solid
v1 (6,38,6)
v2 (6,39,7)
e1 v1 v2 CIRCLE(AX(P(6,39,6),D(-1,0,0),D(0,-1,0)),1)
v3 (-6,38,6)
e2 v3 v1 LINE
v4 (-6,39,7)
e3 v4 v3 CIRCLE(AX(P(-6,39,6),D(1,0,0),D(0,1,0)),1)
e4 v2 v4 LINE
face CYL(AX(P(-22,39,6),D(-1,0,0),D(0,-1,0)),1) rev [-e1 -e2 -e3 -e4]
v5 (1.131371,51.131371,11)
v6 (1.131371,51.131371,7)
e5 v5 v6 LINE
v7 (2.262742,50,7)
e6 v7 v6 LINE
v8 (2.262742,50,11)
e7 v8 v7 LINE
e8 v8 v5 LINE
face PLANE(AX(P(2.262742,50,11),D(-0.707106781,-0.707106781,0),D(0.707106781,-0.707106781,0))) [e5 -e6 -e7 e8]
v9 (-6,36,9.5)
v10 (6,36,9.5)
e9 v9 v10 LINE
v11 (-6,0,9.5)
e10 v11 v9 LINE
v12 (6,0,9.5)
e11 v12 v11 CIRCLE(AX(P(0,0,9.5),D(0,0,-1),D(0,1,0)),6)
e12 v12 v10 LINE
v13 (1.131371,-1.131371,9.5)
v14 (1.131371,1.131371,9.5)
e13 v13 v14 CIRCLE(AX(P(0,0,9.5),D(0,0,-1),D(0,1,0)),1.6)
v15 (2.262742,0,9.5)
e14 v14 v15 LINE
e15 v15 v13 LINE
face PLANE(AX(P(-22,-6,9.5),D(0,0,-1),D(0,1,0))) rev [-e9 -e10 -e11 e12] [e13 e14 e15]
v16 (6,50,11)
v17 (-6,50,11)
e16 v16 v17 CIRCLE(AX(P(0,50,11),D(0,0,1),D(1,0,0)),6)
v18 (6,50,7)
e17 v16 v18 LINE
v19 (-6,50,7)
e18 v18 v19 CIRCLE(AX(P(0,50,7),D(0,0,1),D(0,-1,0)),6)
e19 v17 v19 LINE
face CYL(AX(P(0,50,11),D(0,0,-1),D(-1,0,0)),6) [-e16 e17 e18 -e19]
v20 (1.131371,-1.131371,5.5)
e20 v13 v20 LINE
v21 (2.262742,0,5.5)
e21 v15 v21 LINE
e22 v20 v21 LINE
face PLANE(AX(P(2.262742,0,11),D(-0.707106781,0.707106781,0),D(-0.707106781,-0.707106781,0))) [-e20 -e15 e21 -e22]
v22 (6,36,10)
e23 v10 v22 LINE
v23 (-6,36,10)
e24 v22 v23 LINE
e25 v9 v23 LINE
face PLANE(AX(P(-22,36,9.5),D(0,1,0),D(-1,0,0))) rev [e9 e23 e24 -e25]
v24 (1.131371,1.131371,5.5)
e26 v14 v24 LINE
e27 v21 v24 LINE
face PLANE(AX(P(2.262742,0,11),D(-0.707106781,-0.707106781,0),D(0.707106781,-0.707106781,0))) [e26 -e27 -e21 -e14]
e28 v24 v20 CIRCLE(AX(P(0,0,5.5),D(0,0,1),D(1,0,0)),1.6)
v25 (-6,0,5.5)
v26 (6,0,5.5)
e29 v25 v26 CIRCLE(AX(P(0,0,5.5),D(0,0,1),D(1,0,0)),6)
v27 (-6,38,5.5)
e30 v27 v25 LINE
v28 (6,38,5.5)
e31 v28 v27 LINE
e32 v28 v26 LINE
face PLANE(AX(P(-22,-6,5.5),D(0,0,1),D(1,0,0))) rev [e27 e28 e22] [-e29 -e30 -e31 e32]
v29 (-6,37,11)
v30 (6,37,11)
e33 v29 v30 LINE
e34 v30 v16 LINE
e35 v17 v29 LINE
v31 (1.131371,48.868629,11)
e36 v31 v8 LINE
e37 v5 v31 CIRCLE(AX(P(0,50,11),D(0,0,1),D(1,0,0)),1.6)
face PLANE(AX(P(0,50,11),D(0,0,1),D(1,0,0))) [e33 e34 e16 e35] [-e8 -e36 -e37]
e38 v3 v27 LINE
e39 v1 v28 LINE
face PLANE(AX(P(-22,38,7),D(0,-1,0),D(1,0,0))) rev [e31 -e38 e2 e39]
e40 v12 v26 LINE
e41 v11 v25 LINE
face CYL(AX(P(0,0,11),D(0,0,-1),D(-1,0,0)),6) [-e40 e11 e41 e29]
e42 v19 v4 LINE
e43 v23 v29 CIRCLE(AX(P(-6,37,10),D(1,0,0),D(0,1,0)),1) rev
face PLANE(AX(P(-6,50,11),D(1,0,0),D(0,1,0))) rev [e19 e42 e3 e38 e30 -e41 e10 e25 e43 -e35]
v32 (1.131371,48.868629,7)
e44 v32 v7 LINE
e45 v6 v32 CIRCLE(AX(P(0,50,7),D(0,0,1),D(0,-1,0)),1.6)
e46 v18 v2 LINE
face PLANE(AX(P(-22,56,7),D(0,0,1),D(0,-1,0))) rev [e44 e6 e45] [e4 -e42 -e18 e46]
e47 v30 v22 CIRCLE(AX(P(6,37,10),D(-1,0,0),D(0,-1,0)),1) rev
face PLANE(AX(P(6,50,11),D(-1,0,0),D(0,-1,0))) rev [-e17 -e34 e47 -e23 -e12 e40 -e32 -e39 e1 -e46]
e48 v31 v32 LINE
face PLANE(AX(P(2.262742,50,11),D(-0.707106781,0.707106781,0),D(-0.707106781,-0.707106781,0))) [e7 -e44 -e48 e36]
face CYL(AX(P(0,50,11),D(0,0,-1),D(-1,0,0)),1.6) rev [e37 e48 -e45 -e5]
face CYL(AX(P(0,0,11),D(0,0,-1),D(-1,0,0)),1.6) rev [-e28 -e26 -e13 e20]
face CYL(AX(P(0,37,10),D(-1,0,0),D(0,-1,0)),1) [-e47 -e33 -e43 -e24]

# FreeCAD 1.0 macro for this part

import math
import FreeCAD as App
import Part
import Sketcher

V = App.Vector
Q = App.Units.Quantity


def edges_at(feature, points):
    """Names of the edges that pass closest to the given points."""
    edges = feature.Shape.Edges
    near = lambda p: min(range(len(edges)), key=lambda i: edges[i].distToShape(Part.Vertex(*p))[0])
    return sorted({f"Edge{near(p) + 1}" for p in points})


def add_polygon(sketch, points):
    """Adds a closed chain of lines whose ends are joined by coincident constraints."""
    first, n = sketch.GeometryCount, len(points)
    for a, b in zip(points, points[1:] + points[:1]):
        sketch.addGeometry(Part.LineSegment(App.Vector(*a, 0), App.Vector(*b, 0)), False)
    for i in range(n):
        sketch.addConstraint(Sketcher.Constraint("Coincident", first + i, 2, first + (i + 1) % n, 1))

doc = App.newDocument("Part")
body = doc.addObject("PartDesign::Body", "Body")

sketch1 = body.newObject("Sketcher::SketchObject", "Sketch")
sketch1.AttachmentSupport = (doc.getObject("XY_Plane"), [""])
sketch1.MapMode = "FlatFace"
sketch1.addGeometry(Part.LineSegment(V(6, 0, 0), V(6, 50, 0)), False)
sketch1.addGeometry(Part.ArcOfCircle(Part.Circle(V(0, 50, 0), V(0, 0, 1), 6), math.radians(0), math.radians(180)), False)
sketch1.addGeometry(Part.LineSegment(V(-6, 50, 0), V(-6, 0, 0)), False)
sketch1.addGeometry(Part.ArcOfCircle(Part.Circle(V(0, 0, 0), V(0, 0, 1), 6), math.radians(180), math.radians(360)), False)
sketch1.addGeometry(Part.LineSegment(V(2.3, 0, 0), V(1.1, -1.1, 0)), False)
sketch1.addGeometry(Part.ArcOfCircle(Part.Circle(V(0, 0, 0), V(0, 0, 1), 1.6), math.radians(45), math.radians(315)), False)
sketch1.addGeometry(Part.LineSegment(V(1.1, 1.1, 0), V(2.3, 0, 0)), False)
sketch1.addGeometry(Part.LineSegment(V(2.3, 50, 0), V(1.1, 48.9, 0)), False)
sketch1.addGeometry(Part.ArcOfCircle(Part.Circle(V(0, 50, 0), V(0, 0, 1), 1.6), math.radians(45), math.radians(315)), False)
sketch1.addGeometry(Part.LineSegment(V(1.1, 51.1, 0), V(2.3, 50, 0)), False)
sketch1.addConstraint(Sketcher.Constraint("Tangent", 0, 2, 1, 1))
sketch1.addConstraint(Sketcher.Constraint("Tangent", 1, 2, 2, 1))
sketch1.addConstraint(Sketcher.Constraint("Tangent", 2, 2, 3, 1))
sketch1.addConstraint(Sketcher.Constraint("Tangent", 3, 2, 0, 1))
sketch1.addConstraint(Sketcher.Constraint("Tangent", 4, 2, 5, 2))
sketch1.addConstraint(Sketcher.Constraint("Tangent", 5, 1, 6, 1))
sketch1.addConstraint(Sketcher.Constraint("Coincident", 6, 2, 4, 1))
sketch1.addConstraint(Sketcher.Constraint("Tangent", 7, 2, 8, 2))
sketch1.addConstraint(Sketcher.Constraint("Tangent", 8, 1, 9, 1))
sketch1.addConstraint(Sketcher.Constraint("Coincident", 9, 2, 7, 1))
sketch1.addConstraint(Sketcher.Constraint("Vertical", 0))
sketch1.addConstraint(Sketcher.Constraint("Vertical", 2))
sketch1.addConstraint(Sketcher.Constraint("Coincident", 3, 3, -1, 1))
sketch1.addConstraint(Sketcher.Constraint("Coincident", 5, 3, -1, 1))
sketch1.addConstraint(Sketcher.Constraint("Coincident", 8, 3, 1, 3))
sketch1.addConstraint(Sketcher.Constraint("Equal", 5, 8))
sketch1.addConstraint(Sketcher.Constraint("PointOnObject", 6, 2, -1))
sketch1.addConstraint(Sketcher.Constraint("Perpendicular", 4, 6))
sketch1.addConstraint(Sketcher.Constraint("Perpendicular", 6, 7))
sketch1.addConstraint(Sketcher.Constraint("Perpendicular", 7, 9))
sketch1.addConstraint(Sketcher.Constraint("Radius", 1, Q("6 mm")))
sketch1.addConstraint(Sketcher.Constraint("Radius", 5, Q("1.6 mm")))
sketch1.addConstraint(Sketcher.Constraint("DistanceY", 0, 1, 0, 2, Q("50 mm")))
pad1 = body.newObject("PartDesign::Pad", "Pad")
pad1.Profile = sketch1
pad1.Length = 22
pad1.Midplane = True

sketch2 = body.newObject("Sketcher::SketchObject", "Sketch001")
sketch2.AttachmentSupport = (doc.getObject("YZ_Plane"), [""])
sketch2.MapMode = "FlatFace"
sketch2.AttachmentOffset = App.Placement(V(0, 0, 6), App.Rotation())
add_polygon(sketch2, [(56, 7), (38, 7), (38, -7), (56, -7)])
add_polygon(sketch2, [(35, 5.5), (-6, 5.5), (-6, -5.5), (35, -5.5)])
add_polygon(sketch2, [(36, 11), (-6, 11), (-6, 9.5), (36, 9.5)])
add_polygon(sketch2, [(36, -9.5), (-6, -9.5), (-6, -11), (36, -11)])
sketch2.addConstraint(Sketcher.Constraint("Horizontal", 0))
sketch2.addConstraint(Sketcher.Constraint("Vertical", 1))
sketch2.addConstraint(Sketcher.Constraint("Horizontal", 2))
sketch2.addConstraint(Sketcher.Constraint("Vertical", 3))
sketch2.addConstraint(Sketcher.Constraint("Horizontal", 4))
sketch2.addConstraint(Sketcher.Constraint("Vertical", 5))
sketch2.addConstraint(Sketcher.Constraint("Horizontal", 6))
sketch2.addConstraint(Sketcher.Constraint("Vertical", 7))
sketch2.addConstraint(Sketcher.Constraint("Horizontal", 8))
sketch2.addConstraint(Sketcher.Constraint("Vertical", 9))
sketch2.addConstraint(Sketcher.Constraint("Horizontal", 10))
sketch2.addConstraint(Sketcher.Constraint("Vertical", 11))
sketch2.addConstraint(Sketcher.Constraint("Horizontal", 12))
sketch2.addConstraint(Sketcher.Constraint("Vertical", 13))
sketch2.addConstraint(Sketcher.Constraint("Horizontal", 14))
sketch2.addConstraint(Sketcher.Constraint("Vertical", 15))
sketch2.addConstraint(Sketcher.Constraint("Symmetric", 9, 2, 12, 2, -1))
sketch2.addConstraint(Sketcher.Constraint("Symmetric", 11, 2, 14, 2, -1))
sketch2.addConstraint(Sketcher.Constraint("Vertical", 5, 2, 8, 2))
sketch2.addConstraint(Sketcher.Constraint("DistanceX", 0, 2, 0, 1, Q("18 mm")))
sketch2.addConstraint(Sketcher.Constraint("DistanceX", 4, 2, 4, 1, Q("41 mm")))
sketch2.addConstraint(Sketcher.Constraint("DistanceX", 8, 2, 8, 1, Q("42 mm")))
sketch2.addConstraint(Sketcher.Constraint("DistanceY", 1, 2, 1, 1, Q("14 mm")))
sketch2.addConstraint(Sketcher.Constraint("DistanceY", 5, 2, 5, 1, Q("11 mm")))
sketch2.addConstraint(Sketcher.Constraint("DistanceY", 9, 2, 9, 1, Q("1.5 mm")))
sketch2.addConstraint(Sketcher.Constraint("DistanceX", -1, 1, 0, 2, Q("38 mm")))
sketch2.addConstraint(Sketcher.Constraint("DistanceY", -1, 1, 0, 2, Q("7 mm")))
sketch2.addConstraint(Sketcher.Constraint("DistanceX", 4, 2, -1, 1, Q("6 mm")))
sketch2.addConstraint(Sketcher.Constraint("DistanceY", -1, 1, 8, 2, Q("11 mm")))
sketch2.addConstraint(Sketcher.Constraint("DistanceY", 4, 2, 9, 2, Q("4 mm")))
pocket1 = body.newObject("PartDesign::Pocket", "Pocket")
pocket1.Profile = sketch2
pocket1.Length = 28
doc.recompute()

fillet = body.newObject("PartDesign::Fillet", "Fillet")
fillet.Base = (pocket1, edges_at(pocket1, [
    (0, 36, -11),
    (0, 38, -7),
    (0, 38, 7),
    (0, 36, 11),
]))
fillet.Radius = 1

sketch3 = body.newObject("Sketcher::SketchObject", "Sketch002")
sketch3.AttachmentSupport = (doc.getObject("XY_Plane"), [""])
sketch3.MapMode = "FlatFace"
sketch3.AttachmentOffset = App.Placement(V(0, 0, 5.5), App.Rotation())
add_polygon(sketch3, [(64, 74), (64, -21), (-68, -21), (-68, 74)])
sketch3.addConstraint(Sketcher.Constraint("Vertical", 0))
sketch3.addConstraint(Sketcher.Constraint("Horizontal", 1))
sketch3.addConstraint(Sketcher.Constraint("Vertical", 2))
sketch3.addConstraint(Sketcher.Constraint("Horizontal", 3))
sketch3.addConstraint(Sketcher.Constraint("DistanceX", 1, 2, 1, 1, Q("132.309002 mm")))
sketch3.addConstraint(Sketcher.Constraint("DistanceY", 0, 2, 0, 1, Q("95.019202 mm")))
sketch3.addConstraint(Sketcher.Constraint("DistanceX", -1, 1, 0, 2, Q("64.082782 mm")))
sketch3.addConstraint(Sketcher.Constraint("DistanceY", 0, 2, -1, 1, Q("21.254739 mm")))
pocket2 = body.newObject("PartDesign::Pocket", "Pocket001")
pocket2.Profile = sketch3
pocket2.Length = 76

doc.recompute()
